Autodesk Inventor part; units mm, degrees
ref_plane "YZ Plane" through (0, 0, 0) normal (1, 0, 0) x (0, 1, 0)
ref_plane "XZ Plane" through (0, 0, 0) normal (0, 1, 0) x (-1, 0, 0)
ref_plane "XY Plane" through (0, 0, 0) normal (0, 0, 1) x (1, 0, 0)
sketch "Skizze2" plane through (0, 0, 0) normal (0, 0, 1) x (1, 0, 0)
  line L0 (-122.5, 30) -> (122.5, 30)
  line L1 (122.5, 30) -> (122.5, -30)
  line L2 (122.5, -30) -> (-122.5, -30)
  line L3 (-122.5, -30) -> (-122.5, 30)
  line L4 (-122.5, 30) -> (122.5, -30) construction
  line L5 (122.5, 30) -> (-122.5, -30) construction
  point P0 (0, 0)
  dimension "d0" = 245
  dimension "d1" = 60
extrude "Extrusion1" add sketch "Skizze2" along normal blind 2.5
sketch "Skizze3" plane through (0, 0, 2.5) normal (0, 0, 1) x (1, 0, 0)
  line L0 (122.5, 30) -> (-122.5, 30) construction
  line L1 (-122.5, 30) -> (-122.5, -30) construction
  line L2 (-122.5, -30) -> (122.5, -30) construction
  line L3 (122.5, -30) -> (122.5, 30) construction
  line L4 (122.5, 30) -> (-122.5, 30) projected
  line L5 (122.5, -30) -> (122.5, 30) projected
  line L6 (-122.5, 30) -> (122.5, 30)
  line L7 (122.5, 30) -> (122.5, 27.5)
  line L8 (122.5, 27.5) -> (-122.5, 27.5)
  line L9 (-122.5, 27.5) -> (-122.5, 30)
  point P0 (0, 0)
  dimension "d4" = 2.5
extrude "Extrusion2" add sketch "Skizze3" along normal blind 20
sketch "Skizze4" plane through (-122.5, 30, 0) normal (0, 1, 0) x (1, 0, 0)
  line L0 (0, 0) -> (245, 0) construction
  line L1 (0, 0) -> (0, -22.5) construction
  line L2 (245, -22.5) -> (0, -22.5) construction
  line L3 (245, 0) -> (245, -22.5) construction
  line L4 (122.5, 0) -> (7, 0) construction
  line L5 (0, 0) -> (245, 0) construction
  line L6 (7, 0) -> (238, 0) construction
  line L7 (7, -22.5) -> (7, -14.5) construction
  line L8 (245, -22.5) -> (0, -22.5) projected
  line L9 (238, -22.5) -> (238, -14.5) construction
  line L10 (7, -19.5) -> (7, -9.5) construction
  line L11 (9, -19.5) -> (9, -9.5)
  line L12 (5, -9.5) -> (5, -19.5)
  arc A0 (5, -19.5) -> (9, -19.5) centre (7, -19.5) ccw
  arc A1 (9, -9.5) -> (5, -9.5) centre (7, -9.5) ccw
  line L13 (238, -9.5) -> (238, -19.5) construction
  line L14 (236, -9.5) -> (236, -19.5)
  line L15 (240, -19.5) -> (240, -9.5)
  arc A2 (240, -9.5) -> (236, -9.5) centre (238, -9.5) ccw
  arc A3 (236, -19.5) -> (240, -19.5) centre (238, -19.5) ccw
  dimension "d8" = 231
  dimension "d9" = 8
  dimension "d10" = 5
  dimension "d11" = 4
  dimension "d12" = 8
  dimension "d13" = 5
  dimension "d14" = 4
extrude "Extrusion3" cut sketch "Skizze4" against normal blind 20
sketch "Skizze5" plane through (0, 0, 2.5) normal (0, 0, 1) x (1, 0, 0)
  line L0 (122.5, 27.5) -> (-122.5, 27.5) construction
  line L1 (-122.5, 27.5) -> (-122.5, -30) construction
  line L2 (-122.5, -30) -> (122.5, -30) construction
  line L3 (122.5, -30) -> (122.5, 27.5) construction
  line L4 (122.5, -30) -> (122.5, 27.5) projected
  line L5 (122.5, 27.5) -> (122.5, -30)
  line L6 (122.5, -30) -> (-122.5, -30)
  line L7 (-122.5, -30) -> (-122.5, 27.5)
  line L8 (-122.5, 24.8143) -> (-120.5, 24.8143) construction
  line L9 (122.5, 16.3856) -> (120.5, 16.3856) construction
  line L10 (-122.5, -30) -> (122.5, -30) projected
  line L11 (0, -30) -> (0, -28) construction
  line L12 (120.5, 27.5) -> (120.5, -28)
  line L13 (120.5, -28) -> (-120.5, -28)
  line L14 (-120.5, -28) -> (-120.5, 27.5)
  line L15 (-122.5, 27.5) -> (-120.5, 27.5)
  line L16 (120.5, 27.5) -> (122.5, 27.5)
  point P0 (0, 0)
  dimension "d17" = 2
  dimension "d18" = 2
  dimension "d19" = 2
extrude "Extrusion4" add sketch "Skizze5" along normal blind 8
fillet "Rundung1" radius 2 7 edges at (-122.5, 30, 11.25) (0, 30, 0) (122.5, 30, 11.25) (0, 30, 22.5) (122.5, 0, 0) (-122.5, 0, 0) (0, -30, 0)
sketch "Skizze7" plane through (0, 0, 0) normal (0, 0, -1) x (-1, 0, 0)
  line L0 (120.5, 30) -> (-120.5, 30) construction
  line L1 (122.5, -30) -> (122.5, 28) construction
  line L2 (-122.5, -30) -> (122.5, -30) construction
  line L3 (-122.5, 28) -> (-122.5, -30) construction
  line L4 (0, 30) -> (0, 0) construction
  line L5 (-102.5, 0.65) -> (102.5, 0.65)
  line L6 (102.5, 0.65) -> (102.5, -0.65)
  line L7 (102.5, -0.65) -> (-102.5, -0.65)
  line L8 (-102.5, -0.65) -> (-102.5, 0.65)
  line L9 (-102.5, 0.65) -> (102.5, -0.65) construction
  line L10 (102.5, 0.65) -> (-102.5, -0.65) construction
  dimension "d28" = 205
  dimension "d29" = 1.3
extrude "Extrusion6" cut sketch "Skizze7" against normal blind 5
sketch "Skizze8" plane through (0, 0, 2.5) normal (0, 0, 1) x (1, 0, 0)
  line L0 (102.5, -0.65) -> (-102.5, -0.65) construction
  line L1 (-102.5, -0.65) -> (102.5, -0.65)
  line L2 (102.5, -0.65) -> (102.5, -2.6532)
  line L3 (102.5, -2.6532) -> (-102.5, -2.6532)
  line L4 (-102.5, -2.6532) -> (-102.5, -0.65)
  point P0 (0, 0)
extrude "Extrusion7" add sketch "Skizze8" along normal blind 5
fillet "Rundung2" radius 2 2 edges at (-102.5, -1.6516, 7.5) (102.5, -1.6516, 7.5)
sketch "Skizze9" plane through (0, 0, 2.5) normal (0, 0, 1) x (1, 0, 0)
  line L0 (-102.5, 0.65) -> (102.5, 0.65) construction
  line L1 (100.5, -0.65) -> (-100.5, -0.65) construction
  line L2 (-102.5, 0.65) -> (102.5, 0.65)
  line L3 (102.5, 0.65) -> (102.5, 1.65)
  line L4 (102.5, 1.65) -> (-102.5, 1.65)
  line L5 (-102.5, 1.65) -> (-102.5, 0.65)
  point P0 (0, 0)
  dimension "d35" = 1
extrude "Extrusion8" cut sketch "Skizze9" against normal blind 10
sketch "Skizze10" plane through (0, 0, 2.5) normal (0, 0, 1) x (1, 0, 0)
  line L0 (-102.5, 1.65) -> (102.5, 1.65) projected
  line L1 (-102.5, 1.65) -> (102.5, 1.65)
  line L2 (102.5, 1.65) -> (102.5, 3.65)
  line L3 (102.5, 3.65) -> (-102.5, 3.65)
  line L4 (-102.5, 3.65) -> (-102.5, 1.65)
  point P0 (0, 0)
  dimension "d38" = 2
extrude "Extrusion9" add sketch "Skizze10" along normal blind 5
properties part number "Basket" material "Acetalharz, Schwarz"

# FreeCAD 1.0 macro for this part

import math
import FreeCAD as App
import Part
import Sketcher


def edges_at(feature, points):
    """Names of the edges that pass closest to the given points."""
    edges = feature.Shape.Edges
    near = lambda p: min(range(len(edges)), key=lambda i: edges[i].distToShape(Part.Vertex(*p))[0])
    return sorted({f"Edge{near(p) + 1}" for p in points})

doc = App.newDocument("Part")
body = doc.addObject("PartDesign::Body", "Body")

sketch1 = doc.addObject("Sketcher::SketchObject", "Sketch")
body.addObject(sketch1)
sketch1.AttachmentSupport = (doc.XY_Plane, [""])
sketch1.MapMode = "FlatFace"
sketch1.addGeometry(Part.LineSegment(App.Vector(122.5, 30, 0), App.Vector(-122.5, 30, 0)), False)
sketch1.addGeometry(Part.LineSegment(App.Vector(-122.5, 30, 0), App.Vector(-122.5, -30, 0)), False)
sketch1.addGeometry(Part.LineSegment(App.Vector(-122.5, -30, 0), App.Vector(122.5, -30, 0)), False)
sketch1.addGeometry(Part.LineSegment(App.Vector(122.5, -30, 0), App.Vector(122.5, 30, 0)), False)
sketch1.addConstraint(Sketcher.Constraint("Coincident", 0, 2, 1, 1))
sketch1.addConstraint(Sketcher.Constraint("Coincident", 1, 2, 2, 1))
sketch1.addConstraint(Sketcher.Constraint("Coincident", 2, 2, 3, 1))
sketch1.addConstraint(Sketcher.Constraint("Coincident", 3, 2, 0, 1))
sketch1.addConstraint(Sketcher.Constraint("Horizontal", 0))
sketch1.addConstraint(Sketcher.Constraint("Vertical", 1))
sketch1.addConstraint(Sketcher.Constraint("Horizontal", 2))
sketch1.addConstraint(Sketcher.Constraint("Vertical", 3))
sketch1.addConstraint(Sketcher.Constraint("Symmetric", 0, 2, 2, 2, -1, 1))
sketch1.addConstraint(Sketcher.Constraint("DistanceX", 0, 2, 0, 1, 245.0))
sketch1.addConstraint(Sketcher.Constraint("DistanceY", 1, 2, 1, 1, 60.0))
pad1 = doc.addObject("PartDesign::Pad", "Pad")
body.addObject(pad1)
pad1.Profile = sketch1
pad1.Length = 2.5

sketch2 = doc.addObject("Sketcher::SketchObject", "Sketch001")
body.addObject(sketch2)
sketch2.AttachmentSupport = (doc.XY_Plane, [""])
sketch2.MapMode = "FlatFace"
sketch2.AttachmentOffset = App.Placement(App.Vector(0, 0, 2.5), App.Rotation())
sketch2.addGeometry(Part.LineSegment(App.Vector(122.5, 27.5, 0), App.Vector(122.5, 30, 0)), False)
sketch2.addGeometry(Part.LineSegment(App.Vector(122.5, 30, 0), App.Vector(-122.5, 30, 0)), False)
sketch2.addGeometry(Part.LineSegment(App.Vector(-122.5, 30, 0), App.Vector(-122.5, 27.5, 0)), False)
sketch2.addGeometry(Part.LineSegment(App.Vector(-122.5, 27.5, 0), App.Vector(122.5, 27.5, 0)), False)
sketch2.addConstraint(Sketcher.Constraint("Coincident", 0, 2, 1, 1))
sketch2.addConstraint(Sketcher.Constraint("Coincident", 1, 2, 2, 1))
sketch2.addConstraint(Sketcher.Constraint("Coincident", 2, 2, 3, 1))
sketch2.addConstraint(Sketcher.Constraint("Coincident", 3, 2, 0, 1))
sketch2.addConstraint(Sketcher.Constraint("Vertical", 0))
sketch2.addConstraint(Sketcher.Constraint("Horizontal", 1))
sketch2.addConstraint(Sketcher.Constraint("Vertical", 2))
sketch2.addConstraint(Sketcher.Constraint("Horizontal", 3))
sketch2.addConstraint(Sketcher.Constraint("DistanceY", 0, 1, 0, 2, 2.5))
sketch2.addConstraint(Sketcher.Constraint("DistanceX", 1, 2, 1, 1, 245.0))
sketch2.addConstraint(Sketcher.Constraint("DistanceY", -1, 1, 0, 2, 30.0))
sketch2.addConstraint(Sketcher.Constraint("DistanceX", -1, 1, 0, 2, 122.5))
pad2 = doc.addObject("PartDesign::Pad", "Pad001")
body.addObject(pad2)
pad2.Profile = sketch2
pad2.Length = 20

sketch3 = doc.addObject("Sketcher::SketchObject", "Sketch002")
body.addObject(sketch3)
sketch3.AttachmentSupport = (doc.XZ_Plane, [""])
sketch3.MapMode = "FlatFace"
sketch3.AttachmentOffset = App.Placement(App.Vector(0, 0, -30), App.Rotation())
sketch3.addGeometry(Part.ArcOfCircle(Part.Circle(App.Vector(-115.5, 19.5, 0), App.Vector(0, 0, 1), 2), math.radians(0), math.radians(180)), False)
sketch3.addGeometry(Part.LineSegment(App.Vector(-113.5, 19.5, 0), App.Vector(-113.5, 9.5, 0)), False)
sketch3.addGeometry(Part.ArcOfCircle(Part.Circle(App.Vector(-115.5, 9.5, 0), App.Vector(0, 0, 1), 2), math.radians(180), math.radians(360)), False)
sketch3.addGeometry(Part.LineSegment(App.Vector(-117.5, 9.5, 0), App.Vector(-117.5, 19.5, 0)), False)
sketch3.addGeometry(Part.ArcOfCircle(Part.Circle(App.Vector(115.5, 9.5, 0), App.Vector(0, 0, 1), 2), math.radians(180), math.radians(360)), False)
sketch3.addGeometry(Part.LineSegment(App.Vector(113.5, 9.5, 0), App.Vector(113.5, 19.5, 0)), False)
sketch3.addGeometry(Part.ArcOfCircle(Part.Circle(App.Vector(115.5, 19.5, 0), App.Vector(0, 0, 1), 2), math.radians(0), math.radians(180)), False)
sketch3.addGeometry(Part.LineSegment(App.Vector(117.5, 19.5, 0), App.Vector(117.5, 9.5, 0)), False)
sketch3.addConstraint(Sketcher.Constraint("Tangent", 0, 1, 1, 1))
sketch3.addConstraint(Sketcher.Constraint("Tangent", 1, 2, 2, 2))
sketch3.addConstraint(Sketcher.Constraint("Tangent", 2, 1, 3, 1))
sketch3.addConstraint(Sketcher.Constraint("Tangent", 3, 2, 0, 2))
sketch3.addConstraint(Sketcher.Constraint("Tangent", 4, 1, 5, 1))
sketch3.addConstraint(Sketcher.Constraint("Tangent", 5, 2, 6, 2))
sketch3.addConstraint(Sketcher.Constraint("Tangent", 6, 1, 7, 1))
sketch3.addConstraint(Sketcher.Constraint("Tangent", 7, 2, 4, 2))
sketch3.addConstraint(Sketcher.Constraint("Vertical", 1))
sketch3.addConstraint(Sketcher.Constraint("Vertical", 3))
sketch3.addConstraint(Sketcher.Constraint("Vertical", 5))
sketch3.addConstraint(Sketcher.Constraint("Vertical", 7))
sketch3.addConstraint(Sketcher.Constraint("Equal", 2, 4))
sketch3.addConstraint(Sketcher.Constraint("Symmetric", 2, 3, 4, 3, -2))
sketch3.addConstraint(Sketcher.Constraint("Horizontal", 0, 3, 6, 3))
sketch3.addConstraint(Sketcher.Constraint("Radius", 0, 2.0))
sketch3.addConstraint(Sketcher.Constraint("DistanceX", 2, 3, 4, 3, 231.0))
sketch3.addConstraint(Sketcher.Constraint("DistanceY", 1, 2, 1, 1, 10.0))
sketch3.addConstraint(Sketcher.Constraint("DistanceY", -1, 1, 0, 3, 19.5))
pocket1 = doc.addObject("PartDesign::Pocket", "Pocket")
body.addObject(pocket1)
pocket1.Profile = sketch3
pocket1.Length = 20
pocket1.Reversed = True

sketch4 = doc.addObject("Sketcher::SketchObject", "Sketch003")
body.addObject(sketch4)
sketch4.AttachmentSupport = (doc.XY_Plane, [""])
sketch4.MapMode = "FlatFace"
sketch4.AttachmentOffset = App.Placement(App.Vector(0, 0, 2.5), App.Rotation())
sketch4.addGeometry(Part.LineSegment(App.Vector(-122.5, -30, 0), App.Vector(122.5, -30, 0)), False)
sketch4.addGeometry(Part.LineSegment(App.Vector(122.5, -30, 0), App.Vector(122.5, 27.5, 0)), False)
sketch4.addGeometry(Part.LineSegment(App.Vector(122.5, 27.5, 0), App.Vector(120.5, 27.5, 0)), False)
sketch4.addGeometry(Part.LineSegment(App.Vector(120.5, 27.5, 0), App.Vector(120.5, -28, 0)), False)
sketch4.addGeometry(Part.LineSegment(App.Vector(120.5, -28, 0), App.Vector(-120.5, -28, 0)), False)
sketch4.addGeometry(Part.LineSegment(App.Vector(-120.5, -28, 0), App.Vector(-120.5, 27.5, 0)), False)
sketch4.addGeometry(Part.LineSegment(App.Vector(-120.5, 27.5, 0), App.Vector(-122.5, 27.5, 0)), False)
sketch4.addGeometry(Part.LineSegment(App.Vector(-122.5, 27.5, 0), App.Vector(-122.5, -30, 0)), False)
sketch4.addConstraint(Sketcher.Constraint("Coincident", 0, 2, 1, 1))
sketch4.addConstraint(Sketcher.Constraint("Coincident", 1, 2, 2, 1))
sketch4.addConstraint(Sketcher.Constraint("Coincident", 2, 2, 3, 1))
sketch4.addConstraint(Sketcher.Constraint("Coincident", 3, 2, 4, 1))
sketch4.addConstraint(Sketcher.Constraint("Coincident", 4, 2, 5, 1))
sketch4.addConstraint(Sketcher.Constraint("Coincident", 5, 2, 6, 1))
sketch4.addConstraint(Sketcher.Constraint("Coincident", 6, 2, 7, 1))
sketch4.addConstraint(Sketcher.Constraint("Coincident", 7, 2, 0, 1))
sketch4.addConstraint(Sketcher.Constraint("Horizontal", 0))
sketch4.addConstraint(Sketcher.Constraint("Vertical", 1))
sketch4.addConstraint(Sketcher.Constraint("Horizontal", 2))
sketch4.addConstraint(Sketcher.Constraint("Vertical", 3))
sketch4.addConstraint(Sketcher.Constraint("Horizontal", 4))
sketch4.addConstraint(Sketcher.Constraint("Vertical", 5))
sketch4.addConstraint(Sketcher.Constraint("Horizontal", 6))
sketch4.addConstraint(Sketcher.Constraint("Vertical", 7))
sketch4.addConstraint(Sketcher.Constraint("Symmetric", 2, 2, 5, 2, -2))
sketch4.addConstraint(Sketcher.Constraint("Equal", 2, 6))
sketch4.addConstraint(Sketcher.Constraint("DistanceX", 2, 2, 2, 1, 2.0))
sketch4.addConstraint(Sketcher.Constraint("DistanceY", 0, 2, 3, 2, 2.0))
sketch4.addConstraint(Sketcher.Constraint("DistanceX", 0, 1, 0, 2, 245.0))
sketch4.addConstraint(Sketcher.Constraint("DistanceY", 1, 1, 1, 2, 57.5))
sketch4.addConstraint(Sketcher.Constraint("DistanceY", 0, 2, -1, 1, 30.0))
pad3 = doc.addObject("PartDesign::Pad", "Pad002")
body.addObject(pad3)
pad3.Profile = sketch4
pad3.Length = 8
doc.recompute()

fillet = doc.addObject("PartDesign::Fillet", "Fillet")
body.addObject(fillet)
fillet.Base = (pad3, edges_at(pad3, [
    (-122.5, 30, 11.25),
    (0, 30, 0),
    (122.5, 30, 11.25),
    (0, 30, 22.5),
    (122.5, 0, 0),
    (-122.5, 0, 0),
    (0, -30, 0),
]))
fillet.Radius = 2

sketch5 = doc.addObject("Sketcher::SketchObject", "Sketch004")
body.addObject(sketch5)
sketch5.AttachmentSupport = (doc.XY_Plane, [""])
sketch5.MapMode = "FlatFace"
sketch5.addGeometry(Part.LineSegment(App.Vector(-102.5, 0.65, 0), App.Vector(102.5, 0.65, 0)), False)
sketch5.addGeometry(Part.LineSegment(App.Vector(102.5, 0.65, 0), App.Vector(102.5, -0.65, 0)), False)
sketch5.addGeometry(Part.LineSegment(App.Vector(102.5, -0.65, 0), App.Vector(-102.5, -0.65, 0)), False)
sketch5.addGeometry(Part.LineSegment(App.Vector(-102.5, -0.65, 0), App.Vector(-102.5, 0.65, 0)), False)
sketch5.addConstraint(Sketcher.Constraint("Coincident", 0, 2, 1, 1))
sketch5.addConstraint(Sketcher.Constraint("Coincident", 1, 2, 2, 1))
sketch5.addConstraint(Sketcher.Constraint("Coincident", 2, 2, 3, 1))
sketch5.addConstraint(Sketcher.Constraint("Coincident", 3, 2, 0, 1))
sketch5.addConstraint(Sketcher.Constraint("Horizontal", 0))
sketch5.addConstraint(Sketcher.Constraint("Vertical", 1))
sketch5.addConstraint(Sketcher.Constraint("Horizontal", 2))
sketch5.addConstraint(Sketcher.Constraint("Vertical", 3))
sketch5.addConstraint(Sketcher.Constraint("Symmetric", 0, 2, 2, 2, -1, 1))
sketch5.addConstraint(Sketcher.Constraint("DistanceX", 0, 1, 0, 2, 205.0))
sketch5.addConstraint(Sketcher.Constraint("DistanceY", 1, 2, 1, 1, 1.3))
pocket2 = doc.addObject("PartDesign::Pocket", "Pocket001")
body.addObject(pocket2)
pocket2.Profile = sketch5
pocket2.Length = 5
pocket2.Reversed = True

sketch6 = doc.addObject("Sketcher::SketchObject", "Sketch005")
body.addObject(sketch6)
sketch6.AttachmentSupport = (doc.XY_Plane, [""])
sketch6.MapMode = "FlatFace"
sketch6.AttachmentOffset = App.Placement(App.Vector(0, 0, 2.5), App.Rotation())
sketch6.addGeometry(Part.LineSegment(App.Vector(102.5, -0.65, 0), App.Vector(-102.5, -0.65, 0)), False)
sketch6.addGeometry(Part.LineSegment(App.Vector(-102.5, -0.65, 0), App.Vector(-102.5, -2.6532, 0)), False)
sketch6.addGeometry(Part.LineSegment(App.Vector(-102.5, -2.6532, 0), App.Vector(102.5, -2.6532, 0)), False)
sketch6.addGeometry(Part.LineSegment(App.Vector(102.5, -2.6532, 0), App.Vector(102.5, -0.65, 0)), False)
sketch6.addConstraint(Sketcher.Constraint("Coincident", 0, 2, 1, 1))
sketch6.addConstraint(Sketcher.Constraint("Coincident", 1, 2, 2, 1))
sketch6.addConstraint(Sketcher.Constraint("Coincident", 2, 2, 3, 1))
sketch6.addConstraint(Sketcher.Constraint("Coincident", 3, 2, 0, 1))
sketch6.addConstraint(Sketcher.Constraint("Horizontal", 0))
sketch6.addConstraint(Sketcher.Constraint("Vertical", 1))
sketch6.addConstraint(Sketcher.Constraint("Horizontal", 2))
sketch6.addConstraint(Sketcher.Constraint("Vertical", 3))
sketch6.addConstraint(Sketcher.Constraint("DistanceX", 0, 2, 0, 1, 205.0))
sketch6.addConstraint(Sketcher.Constraint("DistanceX", 0, 2, -1, 1, 102.5))
sketch6.addConstraint(Sketcher.Constraint("DistanceY", 0, 2, -1, 1, 0.65))
sketch6.addConstraint(Sketcher.Constraint("DistanceY", 1, 2, 1, 1, 2.0032))
pad4 = doc.addObject("PartDesign::Pad", "Pad003")
body.addObject(pad4)
pad4.Profile = sketch6
pad4.Length = 5
doc.recompute()

fillet2 = doc.addObject("PartDesign::Fillet", "Fillet001")
body.addObject(fillet2)
fillet2.Base = (pad4, edges_at(pad4, [(-102.5, -1.652, 7.5), (102.5, -1.652, 7.5)]))
fillet2.Radius = 2

sketch7 = doc.addObject("Sketcher::SketchObject", "Sketch006")
body.addObject(sketch7)
sketch7.AttachmentSupport = (doc.XY_Plane, [""])
sketch7.MapMode = "FlatFace"
sketch7.AttachmentOffset = App.Placement(App.Vector(0, 0, 2.5), App.Rotation())
sketch7.addGeometry(Part.LineSegment(App.Vector(-102.5, 1.65, 0), App.Vector(-102.5, 0.65, 0)), False)
sketch7.addGeometry(Part.LineSegment(App.Vector(-102.5, 0.65, 0), App.Vector(102.5, 0.65, 0)), False)
sketch7.addGeometry(Part.LineSegment(App.Vector(102.5, 0.65, 0), App.Vector(102.5, 1.65, 0)), False)
sketch7.addGeometry(Part.LineSegment(App.Vector(102.5, 1.65, 0), App.Vector(-102.5, 1.65, 0)), False)
sketch7.addConstraint(Sketcher.Constraint("Coincident", 0, 2, 1, 1))
sketch7.addConstraint(Sketcher.Constraint("Coincident", 1, 2, 2, 1))
sketch7.addConstraint(Sketcher.Constraint("Coincident", 2, 2, 3, 1))
sketch7.addConstraint(Sketcher.Constraint("Coincident", 3, 2, 0, 1))
sketch7.addConstraint(Sketcher.Constraint("Vertical", 0))
sketch7.addConstraint(Sketcher.Constraint("Horizontal", 1))
sketch7.addConstraint(Sketcher.Constraint("Vertical", 2))
sketch7.addConstraint(Sketcher.Constraint("Horizontal", 3))
sketch7.addConstraint(Sketcher.Constraint("DistanceY", 0, 2, 0, 1, 1.0))
sketch7.addConstraint(Sketcher.Constraint("DistanceX", 1, 1, 1, 2, 205.0))
sketch7.addConstraint(Sketcher.Constraint("DistanceX", 0, 2, -1, 1, 102.5))
sketch7.addConstraint(Sketcher.Constraint("DistanceY", -1, 1, 0, 2, 0.65))
pocket3 = doc.addObject("PartDesign::Pocket", "Pocket002")
body.addObject(pocket3)
pocket3.Profile = sketch7
pocket3.Length = 10

sketch8 = doc.addObject("Sketcher::SketchObject", "Sketch007")
body.addObject(sketch8)
sketch8.AttachmentSupport = (doc.XY_Plane, [""])
sketch8.MapMode = "FlatFace"
sketch8.AttachmentOffset = App.Placement(App.Vector(0, 0, 2.5), App.Rotation())
sketch8.addGeometry(Part.LineSegment(App.Vector(-102.5, 3.65, 0), App.Vector(-102.5, 1.65, 0)), False)
sketch8.addGeometry(Part.LineSegment(App.Vector(-102.5, 1.65, 0), App.Vector(102.5, 1.65, 0)), False)
sketch8.addGeometry(Part.LineSegment(App.Vector(102.5, 1.65, 0), App.Vector(102.5, 3.65, 0)), False)
sketch8.addGeometry(Part.LineSegment(App.Vector(102.5, 3.65, 0), App.Vector(-102.5, 3.65, 0)), False)
sketch8.addConstraint(Sketcher.Constraint("Coincident", 0, 2, 1, 1))
sketch8.addConstraint(Sketcher.Constraint("Coincident", 1, 2, 2, 1))
sketch8.addConstraint(Sketcher.Constraint("Coincident", 2, 2, 3, 1))
sketch8.addConstraint(Sketcher.Constraint("Coincident", 3, 2, 0, 1))
sketch8.addConstraint(Sketcher.Constraint("Vertical", 0))
sketch8.addConstraint(Sketcher.Constraint("Horizontal", 1))
sketch8.addConstraint(Sketcher.Constraint("Vertical", 2))
sketch8.addConstraint(Sketcher.Constraint("Horizontal", 3))
sketch8.addConstraint(Sketcher.Constraint("DistanceY", 0, 2, 0, 1, 2.0))
sketch8.addConstraint(Sketcher.Constraint("DistanceX", 1, 1, 1, 2, 205.0))
sketch8.addConstraint(Sketcher.Constraint("DistanceX", 0, 2, -1, 1, 102.5))
sketch8.addConstraint(Sketcher.Constraint("DistanceY", -1, 1, 0, 2, 1.65))
pad5 = doc.addObject("PartDesign::Pad", "Pad004")
body.addObject(pad5)
pad5.Profile = sketch8
pad5.Length = 5

doc.recompute()
